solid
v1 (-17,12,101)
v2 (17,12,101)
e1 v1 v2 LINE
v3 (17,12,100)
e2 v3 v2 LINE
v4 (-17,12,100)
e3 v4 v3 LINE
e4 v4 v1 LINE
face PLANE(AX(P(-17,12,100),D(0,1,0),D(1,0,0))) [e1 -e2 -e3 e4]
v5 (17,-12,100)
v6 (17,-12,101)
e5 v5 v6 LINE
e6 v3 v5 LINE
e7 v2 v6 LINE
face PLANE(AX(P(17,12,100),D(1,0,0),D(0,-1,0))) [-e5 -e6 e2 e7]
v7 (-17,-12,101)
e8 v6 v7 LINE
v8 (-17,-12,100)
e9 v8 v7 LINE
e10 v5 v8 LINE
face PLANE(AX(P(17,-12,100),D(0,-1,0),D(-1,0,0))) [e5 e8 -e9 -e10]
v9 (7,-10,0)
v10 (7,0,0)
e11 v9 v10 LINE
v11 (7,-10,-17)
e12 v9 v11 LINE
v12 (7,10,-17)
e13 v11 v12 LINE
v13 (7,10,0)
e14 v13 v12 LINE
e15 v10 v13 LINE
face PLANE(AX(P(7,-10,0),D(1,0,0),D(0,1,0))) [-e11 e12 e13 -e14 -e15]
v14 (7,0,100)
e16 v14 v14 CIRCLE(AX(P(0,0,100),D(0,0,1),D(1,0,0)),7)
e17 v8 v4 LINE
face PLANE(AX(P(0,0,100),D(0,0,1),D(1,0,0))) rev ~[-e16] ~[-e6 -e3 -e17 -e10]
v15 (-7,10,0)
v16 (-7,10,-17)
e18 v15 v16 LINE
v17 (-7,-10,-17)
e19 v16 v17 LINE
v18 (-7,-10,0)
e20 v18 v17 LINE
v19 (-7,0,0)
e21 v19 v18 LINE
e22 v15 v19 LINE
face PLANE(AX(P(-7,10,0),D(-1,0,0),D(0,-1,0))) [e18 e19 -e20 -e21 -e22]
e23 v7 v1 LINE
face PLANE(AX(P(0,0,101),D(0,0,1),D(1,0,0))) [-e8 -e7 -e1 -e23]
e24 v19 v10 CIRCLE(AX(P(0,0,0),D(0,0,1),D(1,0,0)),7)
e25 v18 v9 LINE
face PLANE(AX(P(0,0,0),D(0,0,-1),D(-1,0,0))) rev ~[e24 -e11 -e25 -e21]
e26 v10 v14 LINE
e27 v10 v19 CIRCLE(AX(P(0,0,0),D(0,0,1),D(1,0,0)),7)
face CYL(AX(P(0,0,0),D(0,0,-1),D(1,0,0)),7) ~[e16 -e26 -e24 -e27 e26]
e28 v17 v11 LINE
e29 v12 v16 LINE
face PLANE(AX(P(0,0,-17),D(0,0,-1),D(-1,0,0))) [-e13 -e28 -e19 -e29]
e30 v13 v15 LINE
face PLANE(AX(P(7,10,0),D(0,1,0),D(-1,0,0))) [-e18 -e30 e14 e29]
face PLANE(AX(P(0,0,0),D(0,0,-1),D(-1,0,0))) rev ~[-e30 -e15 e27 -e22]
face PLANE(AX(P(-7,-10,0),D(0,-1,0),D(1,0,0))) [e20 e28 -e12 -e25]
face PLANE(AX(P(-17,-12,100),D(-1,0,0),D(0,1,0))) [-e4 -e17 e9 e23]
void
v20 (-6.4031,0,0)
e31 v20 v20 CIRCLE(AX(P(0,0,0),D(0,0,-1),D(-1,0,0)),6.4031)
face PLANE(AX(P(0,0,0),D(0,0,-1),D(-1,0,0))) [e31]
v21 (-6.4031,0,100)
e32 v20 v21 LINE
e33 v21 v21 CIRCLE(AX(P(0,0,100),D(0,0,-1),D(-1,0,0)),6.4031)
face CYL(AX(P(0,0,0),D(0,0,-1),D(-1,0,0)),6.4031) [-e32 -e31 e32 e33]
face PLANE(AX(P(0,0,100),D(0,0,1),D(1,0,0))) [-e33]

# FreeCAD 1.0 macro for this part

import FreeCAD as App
import Part
import Sketcher
from FreeCAD import Vector


def add_polygon(sketch, points):
    """Adds a closed chain of lines whose ends are joined by coincident constraints."""
    first, n = sketch.GeometryCount, len(points)
    for a, b in zip(points, points[1:] + points[:1]):
        sketch.addGeometry(Part.LineSegment(App.Vector(*a, 0), App.Vector(*b, 0)), False)
    for i in range(n):
        sketch.addConstraint(Sketcher.Constraint("Coincident", first + i, 2, first + (i + 1) % n, 1))

doc = App.newDocument("Part")
body = doc.addObject("PartDesign::Body", "Body")

sketch1 = body.newObject("Sketcher::SketchObject", "Sketch")
sketch1.AttachmentSupport = (doc.getObject("XY_Plane"), [""])
sketch1.MapMode = "FlatFace"
sketch1.addGeometry(Part.Circle(Vector(0, 0, 0), Vector(0, 0, 1), 7), False)
sketch1.addConstraint([
    Sketcher.Constraint("Coincident", 0, 3, -1, 1),
    Sketcher.Constraint("Diameter", 0, 14.0),
])
pad1 = body.newObject("PartDesign::Pad", "Pad")
pad1.Profile = sketch1
pad1.Length = 100

sketch2 = body.newObject("Sketcher::SketchObject", "Sketch001")
sketch2.AttachmentSupport = (doc.getObject("XY_Plane"), [""])
sketch2.MapMode = "FlatFace"
sketch2.addGeometry(Part.Circle(Vector(0, 0, 0), Vector(0, 0, 1), 6.4031), False)
sketch2.addConstraint([
    Sketcher.Constraint("Coincident", 0, 3, -1, 1),
    Sketcher.Constraint("Diameter", 0, 12.8062),
])
pocket1 = body.newObject("PartDesign::Pocket", "Pocket")
pocket1.Profile = sketch2
pocket1.Length = 1000
pocket1.Reversed = True

sketch3 = body.newObject("Sketcher::SketchObject", "Sketch002")
sketch3.AttachmentSupport = (doc.getObject("XY_Plane"), [""])
sketch3.MapMode = "FlatFace"
sketch3.AttachmentOffset = App.Placement(Vector(0, 0, 100), App.Rotation())
add_polygon(sketch3, [(-17, -12), (17, -12), (17, 12), (-17, 12)])
sketch3.addConstraint([
    Sketcher.Constraint("Horizontal", 0),
    Sketcher.Constraint("Vertical", 1),
    Sketcher.Constraint("Horizontal", 2),
    Sketcher.Constraint("Vertical", 3),
    Sketcher.Constraint("Symmetric", 0, 2, 2, 2, -1, 1),
    Sketcher.Constraint("DistanceX", 0, 1, 0, 2, 34.0),
    Sketcher.Constraint("DistanceY", 1, 1, 1, 2, 24.0),
])
pad2 = body.newObject("PartDesign::Pad", "Pad001")
pad2.Profile = sketch3
pad2.Length = 1

sketch4 = body.newObject("Sketcher::SketchObject", "Sketch003")
sketch4.AttachmentSupport = (doc.getObject("XY_Plane"), [""])
sketch4.MapMode = "FlatFace"
add_polygon(sketch4, [(7, -10), (-7, -10), (-7, 10), (7, 10)])
sketch4.addConstraint([
    Sketcher.Constraint("Horizontal", 0),
    Sketcher.Constraint("Vertical", 1),
    Sketcher.Constraint("Horizontal", 2),
    Sketcher.Constraint("Vertical", 3),
    Sketcher.Constraint("Symmetric", 0, 2, 2, 2, -1, 1),
    Sketcher.Constraint("DistanceX", 0, 2, 0, 1, 14.0),
    Sketcher.Constraint("DistanceY", 1, 1, 1, 2, 20.0),
])
pad3 = body.newObject("PartDesign::Pad", "Pad002")
pad3.Profile = sketch4
pad3.Length = 17
pad3.Reversed = True

doc.recompute()
